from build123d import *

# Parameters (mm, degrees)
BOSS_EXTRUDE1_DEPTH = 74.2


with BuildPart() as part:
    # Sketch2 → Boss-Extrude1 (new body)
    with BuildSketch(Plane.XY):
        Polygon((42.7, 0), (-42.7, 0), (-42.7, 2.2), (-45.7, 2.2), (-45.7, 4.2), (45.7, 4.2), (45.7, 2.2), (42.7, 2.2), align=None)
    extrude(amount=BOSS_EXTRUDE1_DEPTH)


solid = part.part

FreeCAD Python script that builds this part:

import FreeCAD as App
import Part
import Sketcher


def add_polygon(sketch, points):
    """Adds a closed chain of lines whose ends are joined by coincident constraints."""
    first, n = sketch.GeometryCount, len(points)
    for a, b in zip(points, points[1:] + points[:1]):
        sketch.addGeometry(Part.LineSegment(App.Vector(*a, 0), App.Vector(*b, 0)), False)
    for i in range(n):
        sketch.addConstraint(Sketcher.Constraint("Coincident", first + i, 2, first + (i + 1) % n, 1))

doc = App.newDocument("Part")
params = doc.addObject("Spreadsheet::Sheet", "Params")
for row, (alias, value) in enumerate([
    ("sketch1_width", "3 mm"),
    ("sketch1_height", "2 mm"),
    ("sketch1_width2", "85.4 mm"),
    ("sketch1_height2", "2.2 mm"),
    ("pad1_length", "74.2 mm"),
], start=1):
    params.set(f"A{row}", alias)
    params.set(f"B{row}", "=" + value)
    params.setAlias(f"B{row}", alias)

body = doc.addObject("PartDesign::Body", "Body")

sketch1 = body.newObject("Sketcher::SketchObject", "Sketch")
sketch1.AttachmentSupport = (doc.getObject("XY_Plane"), [""])
sketch1.MapMode = "FlatFace"
add_polygon(sketch1, [(-42.7, 0), (42.7, 0), (42.7, 2.2), (45.7, 2.2), (45.7, 4.2), (-45.7, 4.2), (-45.7, 2.2), (-42.7, 2.2)])
sketch1.addConstraint([
    Sketcher.Constraint("Horizontal", 0),
    Sketcher.Constraint("Vertical", 1),
    Sketcher.Constraint("Horizontal", 2),
    Sketcher.Constraint("Vertical", 3),
    Sketcher.Constraint("Horizontal", 4),
    Sketcher.Constraint("Vertical", 5),
    Sketcher.Constraint("Horizontal", 6),
    Sketcher.Constraint("Vertical", 7),
    Sketcher.Constraint("Symmetric", 0, 2, 7, 2, -1, 1),
    Sketcher.Constraint("Symmetric", 2, 2, 5, 2, -2),
    Sketcher.Constraint("DistanceX", 2, 1, 2, 2, 3.0),
    Sketcher.Constraint("DistanceY", 3, 1, 3, 2, 2.0),
    Sketcher.Constraint("DistanceX", 0, 1, 0, 2, 85.4),
    Sketcher.Constraint("DistanceY", 1, 1, 1, 2, 2.2),
])
sketch1.setExpression("Constraints[18]", "Params.sketch1_width")
sketch1.setExpression("Constraints[19]", "Params.sketch1_height")
sketch1.setExpression("Constraints[20]", "Params.sketch1_width2")
sketch1.setExpression("Constraints[21]", "Params.sketch1_height2")
pad1 = body.newObject("PartDesign::Pad", "Pad")
pad1.Profile = sketch1
pad1.setExpression("Length", "Params.pad1_length")

doc.recompute()
